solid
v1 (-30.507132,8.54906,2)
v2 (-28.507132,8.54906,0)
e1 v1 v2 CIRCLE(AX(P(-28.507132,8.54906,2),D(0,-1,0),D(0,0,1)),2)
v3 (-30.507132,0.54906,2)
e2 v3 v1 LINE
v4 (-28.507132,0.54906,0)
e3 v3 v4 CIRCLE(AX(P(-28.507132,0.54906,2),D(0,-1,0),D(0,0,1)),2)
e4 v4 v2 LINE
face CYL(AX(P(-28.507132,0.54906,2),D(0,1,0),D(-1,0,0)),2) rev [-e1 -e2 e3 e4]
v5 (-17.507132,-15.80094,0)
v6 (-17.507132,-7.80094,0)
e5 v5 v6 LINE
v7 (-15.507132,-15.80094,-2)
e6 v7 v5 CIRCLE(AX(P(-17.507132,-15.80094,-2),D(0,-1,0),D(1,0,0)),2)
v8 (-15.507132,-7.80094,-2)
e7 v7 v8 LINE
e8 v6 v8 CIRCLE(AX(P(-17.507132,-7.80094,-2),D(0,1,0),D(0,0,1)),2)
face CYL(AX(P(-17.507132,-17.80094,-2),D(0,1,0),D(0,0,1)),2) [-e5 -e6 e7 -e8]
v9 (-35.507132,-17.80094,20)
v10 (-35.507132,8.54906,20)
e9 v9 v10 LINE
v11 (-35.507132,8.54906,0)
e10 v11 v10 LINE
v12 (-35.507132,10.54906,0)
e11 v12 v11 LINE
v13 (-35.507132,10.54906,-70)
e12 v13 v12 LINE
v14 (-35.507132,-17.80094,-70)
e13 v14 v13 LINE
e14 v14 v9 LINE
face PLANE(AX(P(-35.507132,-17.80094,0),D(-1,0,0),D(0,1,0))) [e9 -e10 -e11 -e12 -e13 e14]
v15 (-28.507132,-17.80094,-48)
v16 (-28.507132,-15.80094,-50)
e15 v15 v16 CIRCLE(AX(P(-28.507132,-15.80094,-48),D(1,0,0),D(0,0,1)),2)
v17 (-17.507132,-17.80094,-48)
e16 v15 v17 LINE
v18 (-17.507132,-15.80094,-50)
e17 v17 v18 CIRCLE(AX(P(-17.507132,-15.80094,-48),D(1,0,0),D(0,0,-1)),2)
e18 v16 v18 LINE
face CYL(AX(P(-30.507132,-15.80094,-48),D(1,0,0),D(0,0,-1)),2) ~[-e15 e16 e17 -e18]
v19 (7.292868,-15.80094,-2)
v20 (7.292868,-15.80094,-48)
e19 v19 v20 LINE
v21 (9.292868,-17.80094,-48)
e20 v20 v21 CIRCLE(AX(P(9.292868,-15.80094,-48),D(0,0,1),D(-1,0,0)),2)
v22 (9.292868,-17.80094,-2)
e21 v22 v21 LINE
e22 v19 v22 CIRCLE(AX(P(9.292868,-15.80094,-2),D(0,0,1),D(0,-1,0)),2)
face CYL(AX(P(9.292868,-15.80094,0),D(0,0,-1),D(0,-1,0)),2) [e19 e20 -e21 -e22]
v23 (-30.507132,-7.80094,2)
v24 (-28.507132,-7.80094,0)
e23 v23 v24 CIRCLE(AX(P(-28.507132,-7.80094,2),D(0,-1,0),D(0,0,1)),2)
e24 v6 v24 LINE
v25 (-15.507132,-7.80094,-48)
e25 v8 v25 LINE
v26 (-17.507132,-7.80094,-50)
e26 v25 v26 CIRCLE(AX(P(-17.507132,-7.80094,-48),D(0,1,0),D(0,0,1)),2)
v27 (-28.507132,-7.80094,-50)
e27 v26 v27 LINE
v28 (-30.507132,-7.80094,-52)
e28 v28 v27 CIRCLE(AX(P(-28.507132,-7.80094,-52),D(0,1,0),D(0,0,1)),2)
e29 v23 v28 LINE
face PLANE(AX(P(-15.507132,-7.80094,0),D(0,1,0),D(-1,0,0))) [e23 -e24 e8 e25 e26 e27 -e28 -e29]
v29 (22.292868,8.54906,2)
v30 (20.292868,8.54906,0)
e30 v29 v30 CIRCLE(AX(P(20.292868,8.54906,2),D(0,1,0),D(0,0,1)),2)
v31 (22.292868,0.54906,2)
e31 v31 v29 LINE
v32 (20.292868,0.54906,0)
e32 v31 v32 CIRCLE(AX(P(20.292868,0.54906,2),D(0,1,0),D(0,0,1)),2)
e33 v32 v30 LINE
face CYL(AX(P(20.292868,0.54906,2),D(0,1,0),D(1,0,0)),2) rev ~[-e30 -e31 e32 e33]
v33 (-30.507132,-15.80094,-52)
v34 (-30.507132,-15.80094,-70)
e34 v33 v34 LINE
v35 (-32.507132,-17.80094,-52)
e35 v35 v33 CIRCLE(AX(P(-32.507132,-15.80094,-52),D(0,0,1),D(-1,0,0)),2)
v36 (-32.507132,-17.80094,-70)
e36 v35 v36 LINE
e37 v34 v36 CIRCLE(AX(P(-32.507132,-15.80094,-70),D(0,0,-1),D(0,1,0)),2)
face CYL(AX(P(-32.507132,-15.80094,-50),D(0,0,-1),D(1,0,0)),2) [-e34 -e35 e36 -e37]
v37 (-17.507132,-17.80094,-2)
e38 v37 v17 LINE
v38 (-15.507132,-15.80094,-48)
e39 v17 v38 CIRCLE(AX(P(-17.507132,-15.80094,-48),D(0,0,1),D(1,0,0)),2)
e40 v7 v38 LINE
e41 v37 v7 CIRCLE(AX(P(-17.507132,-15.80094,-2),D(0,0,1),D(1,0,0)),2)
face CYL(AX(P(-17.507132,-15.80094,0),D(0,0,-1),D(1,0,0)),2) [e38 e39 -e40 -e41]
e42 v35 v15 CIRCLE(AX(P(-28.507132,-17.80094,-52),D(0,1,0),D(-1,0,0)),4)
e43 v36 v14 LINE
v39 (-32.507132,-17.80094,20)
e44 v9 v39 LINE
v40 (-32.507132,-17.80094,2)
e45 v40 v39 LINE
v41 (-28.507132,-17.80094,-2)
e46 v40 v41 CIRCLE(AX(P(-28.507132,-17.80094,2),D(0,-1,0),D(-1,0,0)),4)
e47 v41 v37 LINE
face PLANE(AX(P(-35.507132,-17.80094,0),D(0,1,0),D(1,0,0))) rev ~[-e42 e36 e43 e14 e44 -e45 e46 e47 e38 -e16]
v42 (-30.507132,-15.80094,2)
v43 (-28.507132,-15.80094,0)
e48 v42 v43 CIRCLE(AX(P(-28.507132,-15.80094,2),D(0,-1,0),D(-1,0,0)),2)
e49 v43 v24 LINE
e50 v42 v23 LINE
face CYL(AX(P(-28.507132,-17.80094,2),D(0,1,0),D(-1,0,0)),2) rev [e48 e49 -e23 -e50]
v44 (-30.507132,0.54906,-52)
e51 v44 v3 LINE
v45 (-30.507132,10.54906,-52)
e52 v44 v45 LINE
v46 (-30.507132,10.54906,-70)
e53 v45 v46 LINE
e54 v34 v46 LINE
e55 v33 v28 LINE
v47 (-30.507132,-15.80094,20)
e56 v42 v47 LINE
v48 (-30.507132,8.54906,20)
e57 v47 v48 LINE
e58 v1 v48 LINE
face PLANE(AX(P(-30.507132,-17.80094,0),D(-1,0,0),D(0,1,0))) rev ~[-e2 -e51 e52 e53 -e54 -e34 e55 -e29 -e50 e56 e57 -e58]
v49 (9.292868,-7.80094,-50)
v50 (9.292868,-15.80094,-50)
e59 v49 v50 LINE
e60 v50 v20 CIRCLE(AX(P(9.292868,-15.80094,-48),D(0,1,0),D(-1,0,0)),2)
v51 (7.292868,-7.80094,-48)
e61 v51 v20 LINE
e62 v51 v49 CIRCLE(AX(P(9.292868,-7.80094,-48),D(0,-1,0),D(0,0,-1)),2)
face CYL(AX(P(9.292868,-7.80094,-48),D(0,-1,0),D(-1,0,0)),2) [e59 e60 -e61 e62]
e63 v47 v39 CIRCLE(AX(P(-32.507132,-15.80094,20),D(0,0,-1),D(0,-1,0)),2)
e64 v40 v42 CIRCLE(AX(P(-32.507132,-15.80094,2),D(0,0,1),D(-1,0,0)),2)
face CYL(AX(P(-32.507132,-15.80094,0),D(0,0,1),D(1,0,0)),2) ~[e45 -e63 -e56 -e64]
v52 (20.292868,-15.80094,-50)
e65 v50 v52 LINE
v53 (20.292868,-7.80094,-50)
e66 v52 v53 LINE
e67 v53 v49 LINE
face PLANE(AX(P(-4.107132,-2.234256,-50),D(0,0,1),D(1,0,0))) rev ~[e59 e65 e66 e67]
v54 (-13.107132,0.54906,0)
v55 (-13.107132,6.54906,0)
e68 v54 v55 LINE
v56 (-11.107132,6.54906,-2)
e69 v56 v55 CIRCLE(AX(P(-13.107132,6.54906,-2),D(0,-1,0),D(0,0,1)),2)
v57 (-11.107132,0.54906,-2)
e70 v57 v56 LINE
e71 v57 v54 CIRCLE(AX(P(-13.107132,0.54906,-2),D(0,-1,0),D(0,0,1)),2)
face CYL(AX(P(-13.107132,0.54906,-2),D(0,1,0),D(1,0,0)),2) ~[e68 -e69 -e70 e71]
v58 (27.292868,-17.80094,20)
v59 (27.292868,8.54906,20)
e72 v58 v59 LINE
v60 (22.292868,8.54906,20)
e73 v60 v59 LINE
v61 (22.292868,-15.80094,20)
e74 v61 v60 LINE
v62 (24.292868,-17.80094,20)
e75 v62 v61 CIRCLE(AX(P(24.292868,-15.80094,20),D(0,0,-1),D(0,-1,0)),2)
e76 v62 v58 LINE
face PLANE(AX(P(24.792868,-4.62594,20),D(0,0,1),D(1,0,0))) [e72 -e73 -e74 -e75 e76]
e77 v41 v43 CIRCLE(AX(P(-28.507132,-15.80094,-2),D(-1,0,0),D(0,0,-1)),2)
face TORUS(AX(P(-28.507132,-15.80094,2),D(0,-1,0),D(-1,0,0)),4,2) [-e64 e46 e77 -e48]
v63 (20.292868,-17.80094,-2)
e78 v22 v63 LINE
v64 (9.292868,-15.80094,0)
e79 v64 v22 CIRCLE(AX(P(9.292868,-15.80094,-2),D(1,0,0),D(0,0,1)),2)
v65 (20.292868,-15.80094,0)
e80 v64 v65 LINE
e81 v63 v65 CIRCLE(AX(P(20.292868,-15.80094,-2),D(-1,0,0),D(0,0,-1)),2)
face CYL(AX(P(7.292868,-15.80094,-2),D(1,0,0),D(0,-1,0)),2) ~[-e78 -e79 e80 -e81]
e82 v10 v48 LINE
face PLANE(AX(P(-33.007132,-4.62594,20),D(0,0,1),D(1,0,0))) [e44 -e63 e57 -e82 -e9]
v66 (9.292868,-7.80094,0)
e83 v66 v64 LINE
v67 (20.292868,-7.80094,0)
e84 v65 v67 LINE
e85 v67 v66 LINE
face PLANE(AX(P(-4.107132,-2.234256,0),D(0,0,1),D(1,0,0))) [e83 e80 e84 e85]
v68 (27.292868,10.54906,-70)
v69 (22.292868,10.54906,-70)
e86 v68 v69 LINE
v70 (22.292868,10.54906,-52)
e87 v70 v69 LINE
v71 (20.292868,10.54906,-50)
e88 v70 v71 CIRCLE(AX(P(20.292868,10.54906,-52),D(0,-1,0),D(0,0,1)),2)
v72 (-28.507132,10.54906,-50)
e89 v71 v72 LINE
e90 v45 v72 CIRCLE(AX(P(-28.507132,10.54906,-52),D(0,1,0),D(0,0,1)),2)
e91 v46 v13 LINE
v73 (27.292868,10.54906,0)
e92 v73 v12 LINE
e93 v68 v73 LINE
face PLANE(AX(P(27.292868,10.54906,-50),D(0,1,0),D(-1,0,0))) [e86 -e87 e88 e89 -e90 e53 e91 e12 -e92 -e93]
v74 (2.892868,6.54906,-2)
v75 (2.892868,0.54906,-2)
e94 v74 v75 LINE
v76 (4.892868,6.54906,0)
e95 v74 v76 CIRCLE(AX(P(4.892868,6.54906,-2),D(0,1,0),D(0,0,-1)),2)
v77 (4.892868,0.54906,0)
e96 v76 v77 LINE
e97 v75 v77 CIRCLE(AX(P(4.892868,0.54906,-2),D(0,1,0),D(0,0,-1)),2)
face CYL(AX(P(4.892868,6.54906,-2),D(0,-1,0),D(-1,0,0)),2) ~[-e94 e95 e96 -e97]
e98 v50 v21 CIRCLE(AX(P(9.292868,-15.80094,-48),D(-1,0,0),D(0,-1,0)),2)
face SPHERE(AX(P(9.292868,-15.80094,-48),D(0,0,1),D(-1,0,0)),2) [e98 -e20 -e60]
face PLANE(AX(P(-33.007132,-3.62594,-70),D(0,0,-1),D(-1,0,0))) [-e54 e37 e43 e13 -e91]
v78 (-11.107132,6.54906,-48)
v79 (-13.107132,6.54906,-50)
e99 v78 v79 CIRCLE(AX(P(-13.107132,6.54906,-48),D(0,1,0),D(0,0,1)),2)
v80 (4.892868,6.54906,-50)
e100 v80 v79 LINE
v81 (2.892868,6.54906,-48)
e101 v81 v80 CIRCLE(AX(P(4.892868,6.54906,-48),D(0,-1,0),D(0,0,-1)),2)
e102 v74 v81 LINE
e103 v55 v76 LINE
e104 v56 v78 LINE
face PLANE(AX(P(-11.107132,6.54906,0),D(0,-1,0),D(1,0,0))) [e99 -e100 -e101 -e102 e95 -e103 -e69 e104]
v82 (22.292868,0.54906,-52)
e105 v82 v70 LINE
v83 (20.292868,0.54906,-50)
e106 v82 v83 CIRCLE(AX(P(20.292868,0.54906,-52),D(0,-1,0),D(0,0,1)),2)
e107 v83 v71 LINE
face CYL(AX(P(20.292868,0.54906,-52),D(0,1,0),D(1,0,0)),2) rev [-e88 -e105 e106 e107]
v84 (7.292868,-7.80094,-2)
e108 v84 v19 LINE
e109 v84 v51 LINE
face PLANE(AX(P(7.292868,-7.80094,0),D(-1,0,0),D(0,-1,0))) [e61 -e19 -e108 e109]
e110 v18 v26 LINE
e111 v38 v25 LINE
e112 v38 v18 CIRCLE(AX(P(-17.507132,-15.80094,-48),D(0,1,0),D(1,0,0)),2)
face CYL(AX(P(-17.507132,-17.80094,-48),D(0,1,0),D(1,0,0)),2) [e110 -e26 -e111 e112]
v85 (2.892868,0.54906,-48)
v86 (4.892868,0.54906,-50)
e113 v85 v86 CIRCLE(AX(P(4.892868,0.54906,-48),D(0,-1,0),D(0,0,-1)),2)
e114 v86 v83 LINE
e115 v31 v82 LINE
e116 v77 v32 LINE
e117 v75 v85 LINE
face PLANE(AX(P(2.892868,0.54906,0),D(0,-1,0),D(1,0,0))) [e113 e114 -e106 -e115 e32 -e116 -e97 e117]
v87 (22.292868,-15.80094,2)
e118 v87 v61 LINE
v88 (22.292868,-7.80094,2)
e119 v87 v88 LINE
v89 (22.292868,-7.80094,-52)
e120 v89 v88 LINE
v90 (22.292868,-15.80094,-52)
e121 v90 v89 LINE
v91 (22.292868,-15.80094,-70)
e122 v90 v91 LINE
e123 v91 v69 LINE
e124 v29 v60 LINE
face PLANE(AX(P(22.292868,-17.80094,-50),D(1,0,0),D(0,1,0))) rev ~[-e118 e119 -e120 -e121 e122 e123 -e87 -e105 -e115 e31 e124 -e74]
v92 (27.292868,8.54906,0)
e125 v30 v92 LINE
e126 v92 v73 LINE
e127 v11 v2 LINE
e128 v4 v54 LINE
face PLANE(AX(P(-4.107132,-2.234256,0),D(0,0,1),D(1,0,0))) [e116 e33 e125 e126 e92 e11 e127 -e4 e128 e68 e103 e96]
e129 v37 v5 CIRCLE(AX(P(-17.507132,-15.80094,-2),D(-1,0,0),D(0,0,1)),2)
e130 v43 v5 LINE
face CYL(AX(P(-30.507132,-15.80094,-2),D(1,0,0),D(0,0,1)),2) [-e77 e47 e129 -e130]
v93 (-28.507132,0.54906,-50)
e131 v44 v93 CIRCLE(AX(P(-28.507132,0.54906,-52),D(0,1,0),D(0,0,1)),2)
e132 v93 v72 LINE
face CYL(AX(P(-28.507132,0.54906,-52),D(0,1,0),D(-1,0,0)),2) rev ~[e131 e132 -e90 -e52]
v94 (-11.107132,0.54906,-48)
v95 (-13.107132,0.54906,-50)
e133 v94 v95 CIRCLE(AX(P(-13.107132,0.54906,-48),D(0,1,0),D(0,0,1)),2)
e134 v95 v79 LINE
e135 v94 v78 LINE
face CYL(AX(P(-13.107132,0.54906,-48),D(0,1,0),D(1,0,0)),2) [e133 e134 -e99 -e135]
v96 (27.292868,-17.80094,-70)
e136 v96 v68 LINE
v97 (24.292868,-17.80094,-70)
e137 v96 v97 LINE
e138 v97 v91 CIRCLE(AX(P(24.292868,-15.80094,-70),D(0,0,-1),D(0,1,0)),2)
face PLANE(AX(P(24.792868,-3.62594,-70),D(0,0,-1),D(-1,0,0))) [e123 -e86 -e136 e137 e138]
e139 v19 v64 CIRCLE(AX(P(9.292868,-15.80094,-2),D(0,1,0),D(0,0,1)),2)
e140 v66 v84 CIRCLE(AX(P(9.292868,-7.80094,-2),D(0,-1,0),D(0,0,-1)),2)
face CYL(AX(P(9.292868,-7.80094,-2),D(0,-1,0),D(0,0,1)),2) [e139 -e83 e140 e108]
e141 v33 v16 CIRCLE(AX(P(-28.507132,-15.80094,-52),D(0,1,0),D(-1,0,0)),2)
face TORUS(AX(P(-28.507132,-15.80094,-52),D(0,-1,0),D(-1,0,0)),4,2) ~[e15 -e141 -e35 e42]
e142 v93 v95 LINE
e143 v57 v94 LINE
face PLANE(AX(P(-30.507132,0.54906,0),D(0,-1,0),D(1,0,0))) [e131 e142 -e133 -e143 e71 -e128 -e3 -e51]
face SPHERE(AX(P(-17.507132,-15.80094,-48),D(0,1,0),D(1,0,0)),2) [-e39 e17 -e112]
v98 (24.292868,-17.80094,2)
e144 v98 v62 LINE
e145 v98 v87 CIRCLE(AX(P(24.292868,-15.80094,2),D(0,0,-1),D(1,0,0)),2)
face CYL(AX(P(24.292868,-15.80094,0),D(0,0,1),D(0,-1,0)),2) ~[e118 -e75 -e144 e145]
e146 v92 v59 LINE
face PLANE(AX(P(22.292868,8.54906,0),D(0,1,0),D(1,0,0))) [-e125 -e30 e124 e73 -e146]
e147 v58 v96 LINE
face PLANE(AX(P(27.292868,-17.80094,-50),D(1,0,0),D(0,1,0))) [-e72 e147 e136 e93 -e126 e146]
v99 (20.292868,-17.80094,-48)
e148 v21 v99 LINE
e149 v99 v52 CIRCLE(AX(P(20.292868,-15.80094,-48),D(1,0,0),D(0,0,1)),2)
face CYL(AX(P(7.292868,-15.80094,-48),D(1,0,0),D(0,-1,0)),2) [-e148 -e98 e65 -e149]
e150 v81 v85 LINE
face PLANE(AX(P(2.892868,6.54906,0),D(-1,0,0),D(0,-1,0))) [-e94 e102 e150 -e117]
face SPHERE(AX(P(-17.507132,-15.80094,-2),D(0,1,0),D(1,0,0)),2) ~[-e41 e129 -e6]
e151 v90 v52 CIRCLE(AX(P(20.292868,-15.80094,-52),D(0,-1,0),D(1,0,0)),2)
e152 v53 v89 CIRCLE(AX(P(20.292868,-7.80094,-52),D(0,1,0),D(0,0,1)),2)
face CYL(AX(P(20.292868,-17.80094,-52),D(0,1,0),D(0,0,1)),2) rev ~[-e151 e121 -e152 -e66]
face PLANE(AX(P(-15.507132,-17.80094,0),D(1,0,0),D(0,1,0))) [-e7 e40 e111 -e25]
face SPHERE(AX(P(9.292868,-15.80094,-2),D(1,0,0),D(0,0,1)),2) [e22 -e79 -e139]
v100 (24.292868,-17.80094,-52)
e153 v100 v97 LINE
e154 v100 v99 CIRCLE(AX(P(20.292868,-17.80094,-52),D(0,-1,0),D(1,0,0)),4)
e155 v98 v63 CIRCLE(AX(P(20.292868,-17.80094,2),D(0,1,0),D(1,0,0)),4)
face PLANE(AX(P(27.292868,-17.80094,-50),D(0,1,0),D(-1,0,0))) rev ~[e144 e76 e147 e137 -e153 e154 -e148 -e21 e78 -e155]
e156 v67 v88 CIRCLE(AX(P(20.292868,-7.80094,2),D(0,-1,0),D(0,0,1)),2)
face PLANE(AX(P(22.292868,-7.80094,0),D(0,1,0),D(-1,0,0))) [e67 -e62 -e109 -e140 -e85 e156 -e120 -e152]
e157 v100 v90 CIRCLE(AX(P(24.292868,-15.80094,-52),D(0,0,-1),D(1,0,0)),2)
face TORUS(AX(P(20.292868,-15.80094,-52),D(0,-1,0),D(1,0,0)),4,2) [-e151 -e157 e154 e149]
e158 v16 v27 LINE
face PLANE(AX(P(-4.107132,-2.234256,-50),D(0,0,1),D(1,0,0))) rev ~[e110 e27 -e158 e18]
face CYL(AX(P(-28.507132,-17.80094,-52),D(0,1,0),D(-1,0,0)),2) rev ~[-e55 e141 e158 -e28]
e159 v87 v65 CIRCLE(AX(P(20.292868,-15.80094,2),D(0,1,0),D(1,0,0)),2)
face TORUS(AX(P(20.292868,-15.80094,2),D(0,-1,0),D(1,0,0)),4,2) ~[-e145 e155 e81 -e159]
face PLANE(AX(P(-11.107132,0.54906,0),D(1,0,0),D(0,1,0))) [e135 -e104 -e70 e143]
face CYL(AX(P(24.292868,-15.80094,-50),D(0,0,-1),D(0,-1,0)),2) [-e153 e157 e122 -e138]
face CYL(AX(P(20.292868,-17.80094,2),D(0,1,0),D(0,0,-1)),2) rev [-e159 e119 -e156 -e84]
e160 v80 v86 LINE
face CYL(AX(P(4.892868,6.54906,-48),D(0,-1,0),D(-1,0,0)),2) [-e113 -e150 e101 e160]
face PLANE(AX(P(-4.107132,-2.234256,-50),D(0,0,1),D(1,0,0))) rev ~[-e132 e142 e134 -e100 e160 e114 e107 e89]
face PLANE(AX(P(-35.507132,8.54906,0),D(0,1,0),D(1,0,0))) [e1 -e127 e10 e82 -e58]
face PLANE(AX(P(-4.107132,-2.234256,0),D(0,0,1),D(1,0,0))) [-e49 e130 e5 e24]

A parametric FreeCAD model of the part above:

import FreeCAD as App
import Part
import Sketcher
Q = App.Units.Quantity


def edges_at(feature, points):
    """Names of the edges that pass closest to the given points."""
    edges = feature.Shape.Edges
    near = lambda p: min(range(len(edges)), key=lambda i: edges[i].distToShape(Part.Vertex(*p))[0])
    return sorted({f"Edge{near(p) + 1}" for p in points})


def add_polygon(sketch, points):
    """Adds a closed chain of lines whose ends are joined by coincident constraints."""
    first, n = sketch.GeometryCount, len(points)
    for a, b in zip(points, points[1:] + points[:1]):
        sketch.addGeometry(Part.LineSegment(App.Vector(*a, 0), App.Vector(*b, 0)), False)
    for i in range(n):
        sketch.addConstraint(Sketcher.Constraint("Coincident", first + i, 2, first + (i + 1) % n, 1))

doc = App.newDocument("Part")
body = doc.addObject("PartDesign::Body", "Body")

sketch1 = body.newObject("Sketcher::SketchObject", "Sketch")
sketch1.AttachmentSupport = (doc.getObject("XY_Plane"), [""])
sketch1.MapMode = "FlatFace"
add_polygon(sketch1, [(-36, 11), (-36, -18), (-16, -18), (-16, -8), (-31, -8), (-31, 1), (-11, 1), (-11, 7), (3, 7), (3, 1), (22, 1), (22, -8), (7, -8), (7, -18), (27, -18), (27, 11)])
sketch1.addConstraint([
    Sketcher.Constraint("Vertical", 0),
    Sketcher.Constraint("Horizontal", 1),
    Sketcher.Constraint("Vertical", 2),
    Sketcher.Constraint("Horizontal", 3),
    Sketcher.Constraint("Vertical", 4),
    Sketcher.Constraint("Horizontal", 5),
    Sketcher.Constraint("Vertical", 6),
    Sketcher.Constraint("Horizontal", 7),
    Sketcher.Constraint("Vertical", 8),
    Sketcher.Constraint("Horizontal", 9),
    Sketcher.Constraint("Vertical", 10),
    Sketcher.Constraint("Horizontal", 11),
    Sketcher.Constraint("Vertical", 12),
    Sketcher.Constraint("Horizontal", 13),
    Sketcher.Constraint("Vertical", 14),
    Sketcher.Constraint("Horizontal", 15),
    Sketcher.Constraint("Horizontal", 5, 2, 8, 2),
    Sketcher.Constraint("Horizontal", 3, 2, 10, 2),
    Sketcher.Constraint("Horizontal", 1, 2, 12, 2),
    Sketcher.Constraint("Equal", 5, 9),
    Sketcher.Constraint("Equal", 3, 11),
    Sketcher.Constraint("Equal", 1, 13),
    Sketcher.Constraint("DistanceX", 1, 1, 1, 2, Q("20 mm")),
    Sketcher.Constraint("DistanceX", 3, 2, 3, 1, Q("15 mm")),
    Sketcher.Constraint("DistanceX", 7, 1, 7, 2, Q("14 mm")),
    Sketcher.Constraint("DistanceY", 2, 1, 2, 2, Q("10 mm")),
    Sketcher.Constraint("DistanceY", 6, 1, 6, 2, Q("6 mm")),
    Sketcher.Constraint("DistanceX", 5, 1, 5, 2, Q("19.4 mm")),
    Sketcher.Constraint("DistanceY", 9, 2, 14, 2, Q("10 mm")),
    Sketcher.Constraint("DistanceY", 0, 2, 0, 1, Q("28.35 mm")),
    Sketcher.Constraint("DistanceX", 0, 2, -1, 1, Q("35.507132 mm")),
    Sketcher.Constraint("DistanceY", 0, 2, -1, 1, Q("17.80094 mm")),
])
pad1 = body.newObject("PartDesign::Pad", "Pad")
pad1.Profile = sketch1
pad1.Length = 50
pad1.Reversed = True

sketch2 = body.newObject("Sketcher::SketchObject", "Sketch001")
sketch2.AttachmentSupport = (doc.getObject("XY_Plane"), [""])
sketch2.MapMode = "FlatFace"
add_polygon(sketch2, [(-36, 9), (-36, -18), (-31, -18), (-31, 9)])
add_polygon(sketch2, [(22, 9), (22, -18), (27, -18), (27, 9)])
sketch2.addConstraint([
    Sketcher.Constraint("Vertical", 0),
    Sketcher.Constraint("Horizontal", 1),
    Sketcher.Constraint("Vertical", 2),
    Sketcher.Constraint("Horizontal", 3),
    Sketcher.Constraint("Vertical", 4),
    Sketcher.Constraint("Horizontal", 5),
    Sketcher.Constraint("Vertical", 6),
    Sketcher.Constraint("Horizontal", 7),
    Sketcher.Constraint("Horizontal", 1, 2, 4, 2),
    Sketcher.Constraint("Horizontal", 3, 2, 6, 2),
    Sketcher.Constraint("Equal", 3, 5),
    Sketcher.Constraint("DistanceX", 1, 1, 1, 2, Q("5 mm")),
    Sketcher.Constraint("DistanceY", 0, 2, 0, 1, Q("26.35 mm")),
    Sketcher.Constraint("DistanceX", 1, 2, 4, 2, Q("52.8 mm")),
    Sketcher.Constraint("DistanceX", 0, 2, -1, 1, Q("35.507132 mm")),
    Sketcher.Constraint("DistanceY", 0, 2, -1, 1, Q("17.80094 mm")),
])
pad2 = body.newObject("PartDesign::Pad", "Pad001")
pad2.Profile = sketch2
pad2.Length = 20

sketch3 = body.newObject("Sketcher::SketchObject", "Sketch002")
sketch3.AttachmentSupport = (doc.getObject("XY_Plane"), [""])
sketch3.MapMode = "FlatFace"
sketch3.AttachmentOffset = App.Placement(App.Vector(0, 0, -50), App.Rotation())
add_polygon(sketch3, [(27, 11), (27, -18), (22, -18), (22, 11)])
add_polygon(sketch3, [(-31, 11), (-31, -18), (-36, -18), (-36, 11)])
sketch3.addConstraint([
    Sketcher.Constraint("Vertical", 0),
    Sketcher.Constraint("Horizontal", 1),
    Sketcher.Constraint("Vertical", 2),
    Sketcher.Constraint("Horizontal", 3),
    Sketcher.Constraint("Vertical", 4),
    Sketcher.Constraint("Horizontal", 5),
    Sketcher.Constraint("Vertical", 6),
    Sketcher.Constraint("Horizontal", 7),
    Sketcher.Constraint("Horizontal", 1, 2, 4, 2),
    Sketcher.Constraint("Horizontal", 3, 2, 6, 2),
    Sketcher.Constraint("Equal", 3, 5),
    Sketcher.Constraint("DistanceX", 1, 2, 1, 1, Q("5 mm")),
    Sketcher.Constraint("DistanceY", 0, 2, 0, 1, Q("28.35 mm")),
    Sketcher.Constraint("DistanceX", 4, 2, 1, 2, Q("52.8 mm")),
    Sketcher.Constraint("DistanceX", -1, 1, 0, 2, Q("27.292868 mm")),
    Sketcher.Constraint("DistanceY", 0, 2, -1, 1, Q("17.80094 mm")),
])
pad3 = body.newObject("PartDesign::Pad", "Pad002")
pad3.Profile = sketch3
pad3.Length = 20
pad3.Reversed = True
doc.recompute()

fillet = body.newObject("PartDesign::Fillet", "Fillet")
fillet.Base = (pad3, edges_at(pad3, [
    (14.793, -17.801, 0),
    (7.293, -12.801, 0),
    (-15.507, -12.801, -50),
    (2.893, 3.549, 0),
    (-11.107, 3.549, 0),
    (-15.507, -12.801, 0),
    (7.293, -17.801, -25),
    (-15.507, -17.801, -25),
    (-11.107, 3.549, -50),
    (2.893, 3.549, -50),
    (-23.007, -17.801, 0),
    (-30.507, -12.801, 0),
    (-30.507, -17.801, 10),
    (-30.507, 4.549, 0),
    (7.293, -12.801, -50),
    (22.293, 4.549, 0),
    (22.293, -12.801, 0),
    (22.293, -17.801, 10),
    (14.793, -17.801, -50),
    (22.293, 5.549, -50),
    (22.293, -12.801, -50),
    (22.293, -17.801, -60),
    (-23.007, -17.801, -50),
    (-30.507, -12.801, -50),
    (-30.507, 5.549, -50),
    (-30.507, -17.801, -60),
]))
fillet.Radius = 2

doc.recompute()
